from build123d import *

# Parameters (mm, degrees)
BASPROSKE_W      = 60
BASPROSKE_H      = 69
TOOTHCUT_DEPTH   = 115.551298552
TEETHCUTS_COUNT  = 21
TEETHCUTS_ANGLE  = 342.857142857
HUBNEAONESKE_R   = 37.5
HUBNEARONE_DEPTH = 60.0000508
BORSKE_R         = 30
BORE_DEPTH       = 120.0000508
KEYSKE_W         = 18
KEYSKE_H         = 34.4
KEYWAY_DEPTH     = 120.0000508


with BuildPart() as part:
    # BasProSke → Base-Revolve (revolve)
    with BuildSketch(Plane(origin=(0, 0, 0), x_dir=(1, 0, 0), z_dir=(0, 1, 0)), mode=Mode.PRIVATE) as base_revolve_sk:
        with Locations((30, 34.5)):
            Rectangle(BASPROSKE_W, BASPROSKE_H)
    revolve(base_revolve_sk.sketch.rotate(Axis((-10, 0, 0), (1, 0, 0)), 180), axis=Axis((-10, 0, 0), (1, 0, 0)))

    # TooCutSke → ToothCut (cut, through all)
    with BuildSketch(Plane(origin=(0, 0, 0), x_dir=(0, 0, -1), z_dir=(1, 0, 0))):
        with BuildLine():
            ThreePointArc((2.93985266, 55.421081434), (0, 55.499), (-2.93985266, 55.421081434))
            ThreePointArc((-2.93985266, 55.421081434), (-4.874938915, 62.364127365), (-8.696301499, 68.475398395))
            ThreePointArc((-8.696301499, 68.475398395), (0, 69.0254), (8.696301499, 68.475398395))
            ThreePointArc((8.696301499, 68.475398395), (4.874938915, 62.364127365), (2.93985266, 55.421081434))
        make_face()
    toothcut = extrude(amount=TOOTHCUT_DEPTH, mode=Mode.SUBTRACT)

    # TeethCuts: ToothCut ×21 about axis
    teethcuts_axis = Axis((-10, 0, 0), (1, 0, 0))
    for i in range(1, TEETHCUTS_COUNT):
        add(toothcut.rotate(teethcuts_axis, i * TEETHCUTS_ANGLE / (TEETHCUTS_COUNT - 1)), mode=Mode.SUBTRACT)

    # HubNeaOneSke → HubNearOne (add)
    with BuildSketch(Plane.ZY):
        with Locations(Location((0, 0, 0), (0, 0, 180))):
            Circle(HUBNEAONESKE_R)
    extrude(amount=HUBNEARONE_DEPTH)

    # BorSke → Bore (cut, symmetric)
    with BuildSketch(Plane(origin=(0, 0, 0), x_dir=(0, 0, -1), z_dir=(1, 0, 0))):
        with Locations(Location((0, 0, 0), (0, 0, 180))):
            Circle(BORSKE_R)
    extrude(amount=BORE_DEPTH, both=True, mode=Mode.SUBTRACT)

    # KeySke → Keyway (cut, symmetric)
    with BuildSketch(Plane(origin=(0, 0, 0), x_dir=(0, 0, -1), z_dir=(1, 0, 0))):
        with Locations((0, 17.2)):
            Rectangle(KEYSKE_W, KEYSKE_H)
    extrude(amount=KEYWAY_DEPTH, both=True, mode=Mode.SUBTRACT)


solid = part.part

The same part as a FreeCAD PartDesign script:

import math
import FreeCAD as App
import Part
import Sketcher
Q = App.Units.Quantity


def add_polygon(sketch, points):
    """Adds a closed chain of lines whose ends are joined by coincident constraints."""
    first, n = sketch.GeometryCount, len(points)
    for a, b in zip(points, points[1:] + points[:1]):
        sketch.addGeometry(Part.LineSegment(App.Vector(*a, 0), App.Vector(*b, 0)), False)
    for i in range(n):
        sketch.addConstraint(Sketcher.Constraint("Coincident", first + i, 2, first + (i + 1) % n, 1))

doc = App.newDocument("Part")
body = doc.addObject("PartDesign::Body", "Body")

# Sketch on XZ plane
sketch1 = body.newObject("Sketcher::SketchObject", "Sketch")
sketch1.AttachmentSupport = (doc.getObject("XZ_Plane"), [""])
sketch1.MapMode = "FlatFace"
add_polygon(sketch1, [(0, -69), (0, 0), (60, 0), (60, -69)])  # lines 0-3
sketch1.addConstraint(Sketcher.Constraint("Vertical", 0))
sketch1.addConstraint(Sketcher.Constraint("Horizontal", 1))
sketch1.addConstraint(Sketcher.Constraint("Vertical", 2))
sketch1.addConstraint(Sketcher.Constraint("Horizontal", 3))
sketch1.addConstraint(Sketcher.Constraint("Coincident", 0, 2, -1, 1))
sketch1.addConstraint(Sketcher.Constraint("DistanceX", 1, 1, 1, 2, Q("60 mm")))
sketch1.addConstraint(Sketcher.Constraint("DistanceY", 0, 1, 0, 2, Q("69 mm")))
revolution = body.newObject("PartDesign::Revolution", "Revolution")
revolution.Profile = sketch1
revolution.ReferenceAxis = (sketch1, ["H_Axis"])
revolution.Angle = 360

# Sketch on YZ plane
sketch2 = body.newObject("Sketcher::SketchObject", "Sketch001")
sketch2.AttachmentSupport = (doc.getObject("YZ_Plane"), [""])
sketch2.MapMode = "FlatFace"
sketch2.addGeometry(Part.ArcOfCircle(Part.Circle(App.Vector(0, 0, 0), App.Vector(0, 0, 1), 55), math.radians(-3.04), math.radians(3.04)), False)
sketch2.addGeometry(Part.ArcOfCircle(Part.Circle(App.Vector(52, -28, 0), App.Vector(0, 0, 1), 25), math.radians(50), math.radians(83)), False)
sketch2.addGeometry(Part.ArcOfCircle(Part.Circle(App.Vector(0, 0, 0), App.Vector(0, 0, 1), 69), math.radians(-7.24), math.radians(7.24)), False)
sketch2.addGeometry(Part.ArcOfCircle(Part.Circle(App.Vector(52, 28, 0), App.Vector(0, 0, 1), 25), math.radians(-83), math.radians(-50)), False)
sketch2.addConstraint(Sketcher.Constraint("Coincident", 0, 1, 1, 2))
sketch2.addConstraint(Sketcher.Constraint("Coincident", 1, 1, 2, 1))
sketch2.addConstraint(Sketcher.Constraint("Coincident", 2, 2, 3, 2))
sketch2.addConstraint(Sketcher.Constraint("Coincident", 3, 1, 0, 2))
sketch2.addConstraint(Sketcher.Constraint("Coincident", 0, 3, -1, 1))
sketch2.addConstraint(Sketcher.Constraint("Coincident", 2, 3, -1, 1))
sketch2.addConstraint(Sketcher.Constraint("Equal", 1, 3))
sketch2.addConstraint(Sketcher.Constraint("Symmetric", 1, 3, 3, 3, -1))
sketch2.addConstraint(Sketcher.Constraint("Radius", 1, Q("25.2 mm")))
sketch2.addConstraint(Sketcher.Constraint("Radius", 0, Q("55.499 mm")))
sketch2.addConstraint(Sketcher.Constraint("Radius", 2, Q("69.0254 mm")))
sketch2.addConstraint(Sketcher.Constraint("DistanceY", 1, 1, 3, 3, Q("36.629001 mm")))
sketch2.addConstraint(Sketcher.Constraint("DistanceY", 1, 3, -1, 1, Q("27.932699 mm")))
pocket1 = body.newObject("PartDesign::Pocket", "Pocket")
pocket1.Profile = sketch2
pocket1.Type = "ThroughAll"
pocket1.Reversed = True
doc.recompute()

polarpattern = body.newObject("PartDesign::PolarPattern", "PolarPattern")
polarpattern.Originals = [pocket1]
polarpattern.Axis = (doc.getObject("X_Axis"), [""])
polarpattern.Angle = 360
polarpattern.Occurrences = 21
body.Tip = polarpattern

# Sketch on YZ plane
sketch3 = body.newObject("Sketcher::SketchObject", "Sketch002")
sketch3.AttachmentSupport = (doc.getObject("YZ_Plane"), [""])
sketch3.MapMode = "FlatFace"
sketch3.addGeometry(Part.Circle(App.Vector(0, 0, 0), App.Vector(0, 0, 1), 38), False)
sketch3.addConstraint(Sketcher.Constraint("Coincident", 0, 3, -1, 1))
sketch3.addConstraint(Sketcher.Constraint("Diameter", 0, Q("75 mm")))
pad1 = body.newObject("PartDesign::Pad", "Pad")
pad1.Profile = sketch3
pad1.Length = 60.000051
pad1.Reversed = True

# Sketch on YZ plane
sketch4 = body.newObject("Sketcher::SketchObject", "Sketch003")
sketch4.AttachmentSupport = (doc.getObject("YZ_Plane"), [""])
sketch4.MapMode = "FlatFace"
sketch4.addGeometry(Part.Circle(App.Vector(0, 0, 0), App.Vector(0, 0, 1), 30), False)
sketch4.addConstraint(Sketcher.Constraint("Coincident", 0, 3, -1, 1))
sketch4.addConstraint(Sketcher.Constraint("Diameter", 0, Q("60 mm")))
pocket2 = body.newObject("PartDesign::Pocket", "Pocket001")
pocket2.Profile = sketch4
pocket2.Length = 240.000102
pocket2.Midplane = True

# Sketch on YZ plane
sketch5 = body.newObject("Sketcher::SketchObject", "Sketch004")
sketch5.AttachmentSupport = (doc.getObject("YZ_Plane"), [""])
sketch5.MapMode = "FlatFace"
add_polygon(sketch5, [(34, 9), (0, 9), (0, -9), (34, -9)])  # lines 0-3
sketch5.addConstraint(Sketcher.Constraint("Horizontal", 0))
sketch5.addConstraint(Sketcher.Constraint("Vertical", 1))
sketch5.addConstraint(Sketcher.Constraint("Horizontal", 2))
sketch5.addConstraint(Sketcher.Constraint("Vertical", 3))
sketch5.addConstraint(Sketcher.Constraint("Symmetric", 0, 2, 1, 2, -1, 1))
sketch5.addConstraint(Sketcher.Constraint("DistanceY", 1, 2, 1, 1, Q("18 mm")))
sketch5.addConstraint(Sketcher.Constraint("DistanceX", 0, 2, 0, 1, Q("34.4 mm")))
pocket3 = body.newObject("PartDesign::Pocket", "Pocket002")
pocket3.Profile = sketch5
pocket3.Length = 240.000102
pocket3.Midplane = True

doc.recompute()
